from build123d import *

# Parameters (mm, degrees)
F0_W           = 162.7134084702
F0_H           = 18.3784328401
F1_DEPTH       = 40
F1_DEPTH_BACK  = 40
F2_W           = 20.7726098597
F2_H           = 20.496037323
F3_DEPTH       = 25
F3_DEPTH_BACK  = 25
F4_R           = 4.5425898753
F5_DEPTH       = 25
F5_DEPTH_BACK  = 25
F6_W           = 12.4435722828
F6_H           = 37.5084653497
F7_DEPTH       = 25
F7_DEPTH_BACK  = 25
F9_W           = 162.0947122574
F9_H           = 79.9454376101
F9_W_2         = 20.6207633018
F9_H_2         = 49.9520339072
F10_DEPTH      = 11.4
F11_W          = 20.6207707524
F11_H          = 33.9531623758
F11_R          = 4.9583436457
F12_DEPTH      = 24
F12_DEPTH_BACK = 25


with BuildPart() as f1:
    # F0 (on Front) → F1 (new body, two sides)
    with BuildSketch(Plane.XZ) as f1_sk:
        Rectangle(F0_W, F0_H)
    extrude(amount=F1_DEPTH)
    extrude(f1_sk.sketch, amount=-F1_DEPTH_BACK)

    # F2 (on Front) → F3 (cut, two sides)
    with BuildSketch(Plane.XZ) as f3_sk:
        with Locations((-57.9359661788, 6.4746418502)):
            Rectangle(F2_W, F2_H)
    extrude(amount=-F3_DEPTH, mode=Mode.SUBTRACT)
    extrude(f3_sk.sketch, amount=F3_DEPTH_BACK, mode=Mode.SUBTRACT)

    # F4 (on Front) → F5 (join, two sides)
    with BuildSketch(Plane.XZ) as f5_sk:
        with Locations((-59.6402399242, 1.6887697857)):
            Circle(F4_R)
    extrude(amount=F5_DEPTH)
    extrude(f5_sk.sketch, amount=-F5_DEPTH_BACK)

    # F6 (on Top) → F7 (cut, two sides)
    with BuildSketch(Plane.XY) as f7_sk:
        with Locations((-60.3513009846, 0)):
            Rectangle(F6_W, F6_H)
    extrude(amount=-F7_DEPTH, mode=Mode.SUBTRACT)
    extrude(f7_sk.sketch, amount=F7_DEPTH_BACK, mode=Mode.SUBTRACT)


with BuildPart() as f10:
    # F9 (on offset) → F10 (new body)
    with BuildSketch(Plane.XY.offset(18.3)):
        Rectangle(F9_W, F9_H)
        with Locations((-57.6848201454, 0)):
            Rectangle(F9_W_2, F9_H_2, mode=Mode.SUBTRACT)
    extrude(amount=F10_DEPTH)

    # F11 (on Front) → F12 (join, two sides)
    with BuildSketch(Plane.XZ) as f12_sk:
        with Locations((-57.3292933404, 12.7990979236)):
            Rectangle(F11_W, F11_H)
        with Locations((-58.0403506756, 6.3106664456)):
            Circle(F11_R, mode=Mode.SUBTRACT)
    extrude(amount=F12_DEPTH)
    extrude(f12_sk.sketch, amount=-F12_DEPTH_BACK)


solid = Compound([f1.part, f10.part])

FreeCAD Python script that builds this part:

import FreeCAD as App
import Part
import Sketcher

V = App.Vector


def add_polygon(sketch, points):
    """Adds a closed chain of lines whose ends are joined by coincident constraints."""
    first, n = sketch.GeometryCount, len(points)
    for a, b in zip(points, points[1:] + points[:1]):
        sketch.addGeometry(Part.LineSegment(App.Vector(*a, 0), App.Vector(*b, 0)), False)
    for i in range(n):
        sketch.addConstraint(Sketcher.Constraint("Coincident", first + i, 2, first + (i + 1) % n, 1))

doc = App.newDocument("Part")
body = doc.addObject("PartDesign::Body", "Body")

# Sketch on XZ plane
sketch1 = doc.addObject("Sketcher::SketchObject", "Sketch")
body.addObject(sketch1)
sketch1.AttachmentSupport = (doc.XZ_Plane, [""])
sketch1.MapMode = "FlatFace"
add_polygon(sketch1, [(-81.356704, 9.189216), (-81.356704, -9.189216), (81.356704, -9.189216), (81.356704, 9.189216)])  # lines 0-3
sketch1.addConstraint(Sketcher.Constraint("Vertical", 0))
sketch1.addConstraint(Sketcher.Constraint("Horizontal", 1))
sketch1.addConstraint(Sketcher.Constraint("Vertical", 2))
sketch1.addConstraint(Sketcher.Constraint("Horizontal", 3))
sketch1.addConstraint(Sketcher.Constraint("Symmetric", 0, 2, 2, 2, -1, 1))
sketch1.addConstraint(Sketcher.Constraint("DistanceX", 1, 1, 1, 2, 162.713408))
sketch1.addConstraint(Sketcher.Constraint("DistanceY", 0, 2, 0, 1, 18.378433))
pad1 = doc.addObject("PartDesign::Pad", "Pad")
body.addObject(pad1)
pad1.Profile = sketch1
pad1.Type = "TwoLengths"
pad1.Length = 40
pad1.Length2 = 40

# Sketch on XZ plane
sketch2 = doc.addObject("Sketcher::SketchObject", "Sketch001")
body.addObject(sketch2)
sketch2.AttachmentSupport = (doc.XZ_Plane, [""])
sketch2.MapMode = "FlatFace"
add_polygon(sketch2, [(-68.322271, 16.722661), (-68.322271, -3.773377), (-47.549661, -3.773377), (-47.549661, 16.722661)])  # lines 0-3
sketch2.addConstraint(Sketcher.Constraint("Vertical", 0))
sketch2.addConstraint(Sketcher.Constraint("Horizontal", 1))
sketch2.addConstraint(Sketcher.Constraint("Vertical", 2))
sketch2.addConstraint(Sketcher.Constraint("Horizontal", 3))
sketch2.addConstraint(Sketcher.Constraint("DistanceX", 1, 1, 1, 2, 20.77261))
sketch2.addConstraint(Sketcher.Constraint("DistanceY", 0, 2, 0, 1, 20.496037))
sketch2.addConstraint(Sketcher.Constraint("DistanceX", 0, 2, -1, 1, 68.322271))
sketch2.addConstraint(Sketcher.Constraint("DistanceY", -1, 1, 2, 2, 16.722661))
pocket1 = doc.addObject("PartDesign::Pocket", "Pocket")
body.addObject(pocket1)
pocket1.Profile = sketch2
pocket1.Type = "TwoLengths"
pocket1.Length = 25
pocket1.Length2 = 25

# Sketch on XZ plane
sketch3 = doc.addObject("Sketcher::SketchObject", "Sketch002")
body.addObject(sketch3)
sketch3.AttachmentSupport = (doc.XZ_Plane, [""])
sketch3.MapMode = "FlatFace"
sketch3.addGeometry(Part.Circle(V(-59.64024, 1.68877, 0), V(0, 0, 1), 4.54259), False)
sketch3.addConstraint(Sketcher.Constraint("Diameter", 0, 9.08518))
sketch3.addConstraint(Sketcher.Constraint("DistanceX", 0, 3, -1, 1, 59.64024))
sketch3.addConstraint(Sketcher.Constraint("DistanceY", -1, 1, 0, 3, 1.68877))
pad2 = doc.addObject("PartDesign::Pad", "Pad001")
body.addObject(pad2)
pad2.Profile = sketch3
pad2.Type = "TwoLengths"
pad2.Length = 25
pad2.Length2 = 25

# Sketch on XY plane
sketch4 = doc.addObject("Sketcher::SketchObject", "Sketch003")
body.addObject(sketch4)
sketch4.AttachmentSupport = (doc.XY_Plane, [""])
sketch4.MapMode = "FlatFace"
add_polygon(sketch4, [(-66.573087, 18.754233), (-66.573087, -18.754233), (-54.129515, -18.754233), (-54.129515, 18.754233)])  # lines 0-3
sketch4.addConstraint(Sketcher.Constraint("Vertical", 0))
sketch4.addConstraint(Sketcher.Constraint("Horizontal", 1))
sketch4.addConstraint(Sketcher.Constraint("Vertical", 2))
sketch4.addConstraint(Sketcher.Constraint("Horizontal", 3))
sketch4.addConstraint(Sketcher.Constraint("DistanceX", 1, 1, 1, 2, 12.443572))
sketch4.addConstraint(Sketcher.Constraint("DistanceY", 0, 2, 0, 1, 37.508465))
sketch4.addConstraint(Sketcher.Constraint("DistanceX", 0, 2, -1, 1, 66.573087))
sketch4.addConstraint(Sketcher.Constraint("DistanceY", 0, 2, -1, 1, 18.754233))
pocket2 = doc.addObject("PartDesign::Pocket", "Pocket001")
body.addObject(pocket2)
pocket2.Profile = sketch4
pocket2.Type = "ThroughAll"
pocket2.Midplane = True
body2 = doc.addObject("PartDesign::Body", "Body001")

# Sketch on XY plane
sketch5 = doc.addObject("Sketcher::SketchObject", "Sketch004")
body2.addObject(sketch5)
sketch5.AttachmentSupport = (doc.getObject("XY_Plane001"), [""])
sketch5.MapMode = "FlatFace"
sketch5.AttachmentOffset = App.Placement(V(0, 0, 18.3), App.Rotation())
add_polygon(sketch5, [(-81.047356, 39.972719), (-81.047356, -39.972719), (81.047356, -39.972719), (81.047356, 39.972719)])  # lines 0-3
add_polygon(sketch5, [(-47.374438, -24.976017), (-67.995202, -24.976017), (-67.995202, 24.976017), (-47.374438, 24.976017)])  # lines 4-7
sketch5.addConstraint(Sketcher.Constraint("Vertical", 0))
sketch5.addConstraint(Sketcher.Constraint("Horizontal", 1))
sketch5.addConstraint(Sketcher.Constraint("Vertical", 2))
sketch5.addConstraint(Sketcher.Constraint("Horizontal", 3))
sketch5.addConstraint(Sketcher.Constraint("Horizontal", 4))
sketch5.addConstraint(Sketcher.Constraint("Vertical", 5))
sketch5.addConstraint(Sketcher.Constraint("Horizontal", 6))
sketch5.addConstraint(Sketcher.Constraint("Vertical", 7))
sketch5.addConstraint(Sketcher.Constraint("Symmetric", 0, 2, 2, 2, -1, 1))
sketch5.addConstraint(Sketcher.Constraint("DistanceX", 4, 2, -1, 1, 67.995202))
sketch5.addConstraint(Sketcher.Constraint("DistanceY", 0, 2, 4, 2, 14.996702))
sketch5.addConstraint(Sketcher.Constraint("DistanceY", 5, 2, 3, 2, 14.996702))
sketch5.addConstraint(Sketcher.Constraint("DistanceX", 1, 1, 1, 2, 162.094712))
sketch5.addConstraint(Sketcher.Constraint("DistanceX", 4, 2, 4, 1, 20.620763))
sketch5.addConstraint(Sketcher.Constraint("DistanceY", 0, 2, 0, 1, 79.945438))
pad3 = doc.addObject("PartDesign::Pad", "Pad002")
body2.addObject(pad3)
pad3.Profile = sketch5
pad3.Length = 11.4

# Sketch on XZ plane
sketch6 = doc.addObject("Sketcher::SketchObject", "Sketch005")
body2.addObject(sketch6)
sketch6.AttachmentSupport = (doc.getObject("XZ_Plane001"), [""])
sketch6.MapMode = "FlatFace"
add_polygon(sketch6, [(-67.639679, 29.775679), (-67.639679, -4.177483), (-47.018908, -4.177483), (-47.018908, 29.775679)])  # lines 0-3
sketch6.addGeometry(Part.Circle(V(-58.040351, 6.310666, 0), V(0, 0, 1), 4.958344), False)  # 4
sketch6.addConstraint(Sketcher.Constraint("Vertical", 0))
sketch6.addConstraint(Sketcher.Constraint("Horizontal", 1))
sketch6.addConstraint(Sketcher.Constraint("Vertical", 2))
sketch6.addConstraint(Sketcher.Constraint("Horizontal", 3))
sketch6.addConstraint(Sketcher.Constraint("Diameter", 4, 9.916687))
sketch6.addConstraint(Sketcher.Constraint("DistanceX", 1, 1, 1, 2, 20.620771))
sketch6.addConstraint(Sketcher.Constraint("DistanceY", 0, 2, 0, 1, 33.953162))
sketch6.addConstraint(Sketcher.Constraint("DistanceX", 4, 3, -1, 1, 58.040351))
sketch6.addConstraint(Sketcher.Constraint("DistanceX", 0, 2, -1, 1, 67.639679))
sketch6.addConstraint(Sketcher.Constraint("DistanceY", -1, 1, 2, 2, 29.775679))
sketch6.addConstraint(Sketcher.Constraint("DistanceY", 0, 2, 4, 3, 10.48815))
pad4 = doc.addObject("PartDesign::Pad", "Pad003")
body2.addObject(pad4)
pad4.Profile = sketch6
pad4.Type = "TwoLengths"
pad4.Length = 24
pad4.Length2 = 25

doc.recompute()
